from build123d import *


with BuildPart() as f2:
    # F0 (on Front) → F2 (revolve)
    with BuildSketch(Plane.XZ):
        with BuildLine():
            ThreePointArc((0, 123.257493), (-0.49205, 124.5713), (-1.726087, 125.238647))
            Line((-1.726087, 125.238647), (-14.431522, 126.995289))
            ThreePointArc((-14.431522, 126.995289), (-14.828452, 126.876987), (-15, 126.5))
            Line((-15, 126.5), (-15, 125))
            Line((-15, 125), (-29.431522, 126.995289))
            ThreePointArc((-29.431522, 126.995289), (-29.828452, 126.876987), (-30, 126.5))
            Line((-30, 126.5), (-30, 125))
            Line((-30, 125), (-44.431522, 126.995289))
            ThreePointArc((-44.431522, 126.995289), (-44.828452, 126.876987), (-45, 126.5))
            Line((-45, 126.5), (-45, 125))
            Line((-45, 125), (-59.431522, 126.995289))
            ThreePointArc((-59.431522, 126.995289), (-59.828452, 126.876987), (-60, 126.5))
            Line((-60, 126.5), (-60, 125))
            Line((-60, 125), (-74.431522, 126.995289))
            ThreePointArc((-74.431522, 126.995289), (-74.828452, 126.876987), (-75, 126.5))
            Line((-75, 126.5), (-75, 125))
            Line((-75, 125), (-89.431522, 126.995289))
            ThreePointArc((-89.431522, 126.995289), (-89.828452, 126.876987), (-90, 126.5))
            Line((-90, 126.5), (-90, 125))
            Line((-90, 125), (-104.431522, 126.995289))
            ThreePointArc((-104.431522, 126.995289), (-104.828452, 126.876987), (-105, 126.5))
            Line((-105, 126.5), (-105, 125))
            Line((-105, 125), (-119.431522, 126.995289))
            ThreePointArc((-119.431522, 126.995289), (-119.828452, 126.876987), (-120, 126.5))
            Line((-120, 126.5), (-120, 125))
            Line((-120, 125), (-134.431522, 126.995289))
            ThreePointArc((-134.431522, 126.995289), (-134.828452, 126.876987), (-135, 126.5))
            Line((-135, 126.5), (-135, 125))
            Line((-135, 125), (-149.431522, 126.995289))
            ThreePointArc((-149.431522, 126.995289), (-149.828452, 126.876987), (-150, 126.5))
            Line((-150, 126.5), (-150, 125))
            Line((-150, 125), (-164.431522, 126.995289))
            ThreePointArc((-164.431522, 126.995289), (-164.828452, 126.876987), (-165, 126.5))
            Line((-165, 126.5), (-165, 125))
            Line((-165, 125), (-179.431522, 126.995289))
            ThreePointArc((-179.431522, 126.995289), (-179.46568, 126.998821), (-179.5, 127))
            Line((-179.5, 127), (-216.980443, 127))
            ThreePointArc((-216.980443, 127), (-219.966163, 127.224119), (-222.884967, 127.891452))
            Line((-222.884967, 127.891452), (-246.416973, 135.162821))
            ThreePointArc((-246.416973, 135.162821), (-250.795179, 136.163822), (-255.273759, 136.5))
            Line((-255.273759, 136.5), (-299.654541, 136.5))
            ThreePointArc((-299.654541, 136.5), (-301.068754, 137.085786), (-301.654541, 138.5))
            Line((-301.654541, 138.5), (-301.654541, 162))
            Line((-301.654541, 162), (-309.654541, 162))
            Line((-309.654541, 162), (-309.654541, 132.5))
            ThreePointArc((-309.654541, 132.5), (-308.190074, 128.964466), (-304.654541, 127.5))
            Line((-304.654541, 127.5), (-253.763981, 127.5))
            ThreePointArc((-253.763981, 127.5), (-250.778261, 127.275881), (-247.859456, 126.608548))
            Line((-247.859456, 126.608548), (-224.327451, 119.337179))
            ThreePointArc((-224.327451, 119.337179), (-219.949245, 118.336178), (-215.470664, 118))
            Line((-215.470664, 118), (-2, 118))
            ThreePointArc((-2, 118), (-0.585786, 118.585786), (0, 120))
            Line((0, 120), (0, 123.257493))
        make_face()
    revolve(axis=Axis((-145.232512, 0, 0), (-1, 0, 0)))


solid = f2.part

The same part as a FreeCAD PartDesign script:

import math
import FreeCAD as App
import Part
import Sketcher
Q = App.Units.Quantity

doc = App.newDocument("Part")
body = doc.addObject("PartDesign::Body", "Body")

# Sketch on XZ plane
sketch1 = body.newObject("Sketcher::SketchObject", "Sketch")
sketch1.AttachmentSupport = (doc.getObject("XZ_Plane"), [""])
sketch1.MapMode = "FlatFace"
sketch1.addGeometry([
    Part.ArcOfCircle(Part.Circle(App.Vector(-1.999998, 123.257494, 0), App.Vector(0, 0, 1), 1.999998), math.radians(-0.000042), math.radians(82.128275)),  # 0
    Part.LineSegment(App.Vector(-1.726087, 125.238647, 0), App.Vector(-14.431522, 126.995289, 0)),  # 1
    Part.ArcOfCircle(Part.Circle(App.Vector(-14.499999, 126.5, 0), App.Vector(0, 0, 1), 0.500001), math.radians(82.128363), math.radians(179.999946)),  # 2
    Part.LineSegment(App.Vector(-15, 126.5, 0), App.Vector(-15, 125, 0)),  # 3
    Part.LineSegment(App.Vector(-15, 125, 0), App.Vector(-29.431522, 126.995289, 0)),  # 4
    Part.ArcOfCircle(Part.Circle(App.Vector(-29.499999, 126.5, 0), App.Vector(0, 0, 1), 0.500001), math.radians(82.128363), math.radians(179.999946)),  # 5
    Part.LineSegment(App.Vector(-30, 126.5, 0), App.Vector(-30, 125, 0)),  # 6
    Part.LineSegment(App.Vector(-30, 125, 0), App.Vector(-44.431522, 126.995289, 0)),  # 7
    Part.ArcOfCircle(Part.Circle(App.Vector(-44.499999, 126.5, 0), App.Vector(0, 0, 1), 0.500001), math.radians(82.128363), math.radians(179.999946)),  # 8
    Part.LineSegment(App.Vector(-45, 126.5, 0), App.Vector(-45, 125, 0)),  # 9
    Part.LineSegment(App.Vector(-45, 125, 0), App.Vector(-59.431522, 126.995289, 0)),  # 10
    Part.ArcOfCircle(Part.Circle(App.Vector(-59.499999, 126.5, 0), App.Vector(0, 0, 1), 0.500001), math.radians(82.128363), math.radians(179.999946)),  # 11
    Part.LineSegment(App.Vector(-60, 126.5, 0), App.Vector(-60, 125, 0)),  # 12
    Part.LineSegment(App.Vector(-60, 125, 0), App.Vector(-74.431522, 126.995289, 0)),  # 13
    Part.ArcOfCircle(Part.Circle(App.Vector(-74.499999, 126.5, 0), App.Vector(0, 0, 1), 0.500001), math.radians(82.128363), math.radians(179.999946)),  # 14
    Part.LineSegment(App.Vector(-75, 126.5, 0), App.Vector(-75, 125, 0)),  # 15
    Part.LineSegment(App.Vector(-75, 125, 0), App.Vector(-89.431522, 126.995289, 0)),  # 16
    Part.ArcOfCircle(Part.Circle(App.Vector(-89.499999, 126.5, 0), App.Vector(0, 0, 1), 0.500001), math.radians(82.128363), math.radians(179.999946)),  # 17
    Part.LineSegment(App.Vector(-90, 126.5, 0), App.Vector(-90, 125, 0)),  # 18
    Part.LineSegment(App.Vector(-90, 125, 0), App.Vector(-104.431522, 126.995289, 0)),  # 19
    Part.ArcOfCircle(Part.Circle(App.Vector(-104.499999, 126.5, 0), App.Vector(0, 0, 1), 0.500001), math.radians(82.128363), math.radians(179.999946)),  # 20
    Part.LineSegment(App.Vector(-105, 126.5, 0), App.Vector(-105, 125, 0)),  # 21
    Part.LineSegment(App.Vector(-105, 125, 0), App.Vector(-119.431522, 126.995289, 0)),  # 22
    Part.ArcOfCircle(Part.Circle(App.Vector(-119.499999, 126.5, 0), App.Vector(0, 0, 1), 0.500001), math.radians(82.128363), math.radians(179.999946)),  # 23
    Part.LineSegment(App.Vector(-120, 126.5, 0), App.Vector(-120, 125, 0)),  # 24
    Part.LineSegment(App.Vector(-120, 125, 0), App.Vector(-134.431522, 126.995289, 0)),  # 25
    Part.ArcOfCircle(Part.Circle(App.Vector(-134.499999, 126.5, 0), App.Vector(0, 0, 1), 0.500001), math.radians(82.128363), math.radians(179.999946)),  # 26
    Part.LineSegment(App.Vector(-135, 126.5, 0), App.Vector(-135, 125, 0)),  # 27
    Part.LineSegment(App.Vector(-135, 125, 0), App.Vector(-149.431522, 126.995289, 0)),  # 28
    Part.ArcOfCircle(Part.Circle(App.Vector(-149.499999, 126.5, 0), App.Vector(0, 0, 1), 0.500001), math.radians(82.128363), math.radians(179.999946)),  # 29
    Part.LineSegment(App.Vector(-150, 126.5, 0), App.Vector(-150, 125, 0)),  # 30
    Part.LineSegment(App.Vector(-150, 125, 0), App.Vector(-164.431522, 126.995289, 0)),  # 31
    Part.ArcOfCircle(Part.Circle(App.Vector(-164.499999, 126.5, 0), App.Vector(0, 0, 1), 0.500001), math.radians(82.128363), math.radians(179.999946)),  # 32
    Part.LineSegment(App.Vector(-165, 126.5, 0), App.Vector(-165, 125, 0)),  # 33
    Part.LineSegment(App.Vector(-165, 125, 0), App.Vector(-179.431522, 126.995289, 0)),  # 34
    Part.ArcOfCircle(Part.Circle(App.Vector(-179.499996, 126.500016, 0), App.Vector(0, 0, 1), 0.499984), math.radians(82.128499), math.radians(90.000483)),  # 35
    Part.LineSegment(App.Vector(-179.5, 127, 0), App.Vector(-216.980443, 127, 0)),  # 36
    Part.ArcOfCircle(Part.Circle(App.Vector(-216.98044, 147.000026, 0), App.Vector(0, 0, 1), 20.000026), math.radians(-107.171088), math.radians(-90.000009)),  # 37
    Part.LineSegment(App.Vector(-222.884967, 127.891452, 0), App.Vector(-246.416973, 135.162821, 0)),  # 38
    Part.ArcOfCircle(Part.Circle(App.Vector(-255.273754, 106.500047, 0), App.Vector(0, 0, 1), 29.999953), math.radians(72.828881), math.radians(90.00001)),  # 39
    Part.LineSegment(App.Vector(-255.273759, 136.5, 0), App.Vector(-299.654541, 136.5, 0)),  # 40
    Part.ArcOfCircle(Part.Circle(App.Vector(-299.654541, 138.5, 0), App.Vector(0, 0, 1), 2), math.radians(-179.999994), math.radians(-90.000006)),  # 41
    Part.LineSegment(App.Vector(-301.654541, 138.5, 0), App.Vector(-301.654541, 162, 0)),  # 42
    Part.LineSegment(App.Vector(-301.654541, 162, 0), App.Vector(-309.654541, 162, 0)),  # 43
    Part.LineSegment(App.Vector(-309.654541, 162, 0), App.Vector(-309.654541, 132.5, 0)),  # 44
    Part.ArcOfCircle(Part.Circle(App.Vector(-304.65454, 132.500001, 0), App.Vector(0, 0, 1), 5.000001), math.radians(-179.999984), math.radians(-90.000016)),  # 45
    Part.LineSegment(App.Vector(-304.654541, 127.5, 0), App.Vector(-253.763981, 127.5, 0)),  # 46
    Part.ArcOfCircle(Part.Circle(App.Vector(-253.763985, 107.49996, 0), App.Vector(0, 0, 1), 20.00004), math.radians(72.828918), math.radians(89.999988)),  # 47
    Part.LineSegment(App.Vector(-247.859456, 126.608548, 0), App.Vector(-224.327451, 119.337179, 0)),  # 48
    Part.ArcOfCircle(Part.Circle(App.Vector(-215.47067, 147.999953, 0), App.Vector(0, 0, 1), 29.999953), math.radians(-107.171119), math.radians(-89.999988)),  # 49
    Part.LineSegment(App.Vector(-215.470664, 118, 0), App.Vector(-2, 118, 0)),  # 50
    Part.ArcOfCircle(Part.Circle(App.Vector(-1.999999, 119.999999, 0), App.Vector(0, 0, 1), 1.999999), math.radians(-90.000043), math.radians(0.000043)),  # 51
    Part.LineSegment(App.Vector(0, 120, 0), App.Vector(0, 123.257493, 0)),  # 52
], False)
sketch1.addConstraint([
    Sketcher.Constraint("Coincident", 0, 2, 1, 1),
    Sketcher.Constraint("Coincident", 1, 2, 2, 1),
    Sketcher.Constraint("Coincident", 2, 2, 3, 1),
    Sketcher.Constraint("Coincident", 3, 2, 4, 1),
    Sketcher.Constraint("Coincident", 4, 2, 5, 1),
    Sketcher.Constraint("Coincident", 5, 2, 6, 1),
    Sketcher.Constraint("Coincident", 6, 2, 7, 1),
    Sketcher.Constraint("Coincident", 7, 2, 8, 1),
    Sketcher.Constraint("Coincident", 8, 2, 9, 1),
    Sketcher.Constraint("Coincident", 9, 2, 10, 1),
    Sketcher.Constraint("Coincident", 10, 2, 11, 1),
    Sketcher.Constraint("Coincident", 11, 2, 12, 1),
    Sketcher.Constraint("Coincident", 12, 2, 13, 1),
    Sketcher.Constraint("Coincident", 13, 2, 14, 1),
    Sketcher.Constraint("Coincident", 14, 2, 15, 1),
    Sketcher.Constraint("Coincident", 15, 2, 16, 1),
    Sketcher.Constraint("Coincident", 16, 2, 17, 1),
    Sketcher.Constraint("Coincident", 17, 2, 18, 1),
    Sketcher.Constraint("Coincident", 18, 2, 19, 1),
    Sketcher.Constraint("Coincident", 19, 2, 20, 1),
    Sketcher.Constraint("Coincident", 20, 2, 21, 1),
    Sketcher.Constraint("Coincident", 21, 2, 22, 1),
    Sketcher.Constraint("Coincident", 22, 2, 23, 1),
    Sketcher.Constraint("Coincident", 23, 2, 24, 1),
    Sketcher.Constraint("Coincident", 24, 2, 25, 1),
    Sketcher.Constraint("Coincident", 25, 2, 26, 1),
    Sketcher.Constraint("Coincident", 26, 2, 27, 1),
    Sketcher.Constraint("Coincident", 27, 2, 28, 1),
    Sketcher.Constraint("Coincident", 28, 2, 29, 1),
    Sketcher.Constraint("Coincident", 29, 2, 30, 1),
    Sketcher.Constraint("Coincident", 30, 2, 31, 1),
    Sketcher.Constraint("Coincident", 31, 2, 32, 1),
    Sketcher.Constraint("Coincident", 32, 2, 33, 1),
    Sketcher.Constraint("Coincident", 33, 2, 34, 1),
    Sketcher.Constraint("Coincident", 34, 2, 35, 1),
    Sketcher.Constraint("Coincident", 35, 2, 36, 1),
    Sketcher.Constraint("Coincident", 36, 2, 37, 2),
    Sketcher.Constraint("Coincident", 37, 1, 38, 1),
    Sketcher.Constraint("Coincident", 38, 2, 39, 1),
    Sketcher.Constraint("Coincident", 39, 2, 40, 1),
    Sketcher.Constraint("Coincident", 40, 2, 41, 2),
    Sketcher.Constraint("Coincident", 41, 1, 42, 1),
    Sketcher.Constraint("Coincident", 42, 2, 43, 1),
    Sketcher.Constraint("Coincident", 43, 2, 44, 1),
    Sketcher.Constraint("Coincident", 44, 2, 45, 1),
    Sketcher.Constraint("Coincident", 45, 2, 46, 1),
    Sketcher.Constraint("Coincident", 46, 2, 47, 2),
    Sketcher.Constraint("Coincident", 47, 1, 48, 1),
    Sketcher.Constraint("Coincident", 48, 2, 49, 1),
    Sketcher.Constraint("Coincident", 49, 2, 50, 1),
    Sketcher.Constraint("Coincident", 50, 2, 51, 1),
    Sketcher.Constraint("Coincident", 51, 2, 52, 1),
    Sketcher.Constraint("Coincident", 52, 2, 0, 1),
    Sketcher.Constraint("Vertical", 3),
    Sketcher.Constraint("Vertical", 6),
    Sketcher.Constraint("Vertical", 9),
    Sketcher.Constraint("Vertical", 12),
    Sketcher.Constraint("Vertical", 15),
    Sketcher.Constraint("Vertical", 18),
    Sketcher.Constraint("Vertical", 21),
    Sketcher.Constraint("Vertical", 24),
    Sketcher.Constraint("Vertical", 27),
    Sketcher.Constraint("Vertical", 30),
    Sketcher.Constraint("Vertical", 33),
    Sketcher.Constraint("Horizontal", 36),
    Sketcher.Constraint("Horizontal", 40),
    Sketcher.Constraint("Vertical", 42),
    Sketcher.Constraint("Horizontal", 43),
    Sketcher.Constraint("Vertical", 44),
    Sketcher.Constraint("Horizontal", 46),
    Sketcher.Constraint("Horizontal", 50),
    Sketcher.Constraint("Vertical", 52),
    Sketcher.Constraint("PointOnObject", 51, 2, -2),
    Sketcher.Constraint("Radius", 0, Q("1.999998 mm")),
    Sketcher.Constraint("Radius", 41, Q("2 mm")),
    Sketcher.Constraint("Radius", 45, Q("5.000001 mm")),
    Sketcher.Constraint("Radius", 51, Q("1.999999 mm")),
    Sketcher.Constraint("Radius", 2, Q("0.500001 mm")),
    Sketcher.Constraint("Radius", 5, Q("0.500001 mm")),
    Sketcher.Constraint("Radius", 8, Q("0.500001 mm")),
    Sketcher.Constraint("Radius", 11, Q("0.500001 mm")),
    Sketcher.Constraint("Radius", 14, Q("0.500001 mm")),
    Sketcher.Constraint("Radius", 17, Q("0.500001 mm")),
    Sketcher.Constraint("Radius", 20, Q("0.500001 mm")),
    Sketcher.Constraint("Radius", 23, Q("0.500001 mm")),
    Sketcher.Constraint("Radius", 26, Q("0.500001 mm")),
    Sketcher.Constraint("Radius", 29, Q("0.500001 mm")),
    Sketcher.Constraint("Radius", 32, Q("0.500001 mm")),
    Sketcher.Constraint("DistanceX", 43, 2, 43, 1, Q("8 mm")),
    Sketcher.Constraint("DistanceY", 3, 2, 3, 1, Q("1.5 mm")),
    Sketcher.Constraint("DistanceY", 6, 2, 6, 1, Q("1.5 mm")),
    Sketcher.Constraint("DistanceY", 9, 2, 9, 1, Q("1.5 mm")),
    Sketcher.Constraint("DistanceY", 12, 2, 12, 1, Q("1.5 mm")),
    Sketcher.Constraint("DistanceY", 15, 2, 15, 1, Q("1.5 mm")),
    Sketcher.Constraint("DistanceY", 18, 2, 18, 1, Q("1.5 mm")),
    Sketcher.Constraint("DistanceY", 21, 2, 21, 1, Q("1.5 mm")),
    Sketcher.Constraint("DistanceY", 24, 2, 24, 1, Q("1.5 mm")),
    Sketcher.Constraint("DistanceY", 27, 2, 27, 1, Q("1.5 mm")),
    Sketcher.Constraint("DistanceY", 30, 2, 30, 1, Q("1.5 mm")),
    Sketcher.Constraint("DistanceY", 33, 2, 33, 1, Q("1.5 mm")),
    Sketcher.Constraint("DistanceY", 42, 1, 42, 2, Q("23.5 mm")),
    Sketcher.Constraint("DistanceY", 44, 2, 44, 1, Q("29.5 mm")),
    Sketcher.Constraint("DistanceY", -1, 1, 51, 3, Q("119.999999 mm")),
    Sketcher.Constraint("DistanceX", 2, 2, -1, 1, Q("15 mm")),
    Sketcher.Constraint("DistanceY", -1, 1, 3, 2, Q("125 mm")),
    Sketcher.Constraint("DistanceX", 5, 2, -1, 1, Q("30 mm")),
    Sketcher.Constraint("DistanceY", -1, 1, 6, 2, Q("125 mm")),
    Sketcher.Constraint("DistanceX", 8, 2, -1, 1, Q("45 mm")),
    Sketcher.Constraint("DistanceY", -1, 1, 9, 2, Q("125 mm")),
    Sketcher.Constraint("DistanceX", 11, 2, -1, 1, Q("60 mm")),
    Sketcher.Constraint("DistanceY", -1, 1, 12, 2, Q("125 mm")),
    Sketcher.Constraint("DistanceX", 14, 2, -1, 1, Q("75 mm")),
    Sketcher.Constraint("DistanceY", -1, 1, 15, 2, Q("125 mm")),
    Sketcher.Constraint("DistanceX", 17, 2, -1, 1, Q("90 mm")),
    Sketcher.Constraint("DistanceY", -1, 1, 18, 2, Q("125 mm")),
    Sketcher.Constraint("DistanceX", 20, 2, -1, 1, Q("105 mm")),
    Sketcher.Constraint("DistanceY", -1, 1, 21, 2, Q("125 mm")),
    Sketcher.Constraint("DistanceX", 23, 2, -1, 1, Q("120 mm")),
    Sketcher.Constraint("DistanceY", -1, 1, 24, 2, Q("125 mm")),
    Sketcher.Constraint("DistanceX", 26, 2, -1, 1, Q("135 mm")),
    Sketcher.Constraint("DistanceY", -1, 1, 27, 2, Q("125 mm")),
    Sketcher.Constraint("DistanceX", 29, 2, -1, 1, Q("150 mm")),
    Sketcher.Constraint("DistanceY", -1, 1, 30, 2, Q("125 mm")),
    Sketcher.Constraint("DistanceX", 32, 2, -1, 1, Q("165 mm")),
    Sketcher.Constraint("DistanceY", -1, 1, 33, 2, Q("125 mm")),
    Sketcher.Constraint("DistanceY", -1, 1, 35, 2, Q("127 mm")),
    Sketcher.Constraint("DistanceY", -1, 1, 42, 2, Q("162 mm")),
    Sketcher.Constraint("DistanceX", 50, 2, -1, 1, Q("2 mm")),
    Sketcher.Constraint("DistanceY", -1, 1, 51, 2, Q("120 mm")),
    Sketcher.Constraint("DistanceY", -1, 1, 2, 3, Q("126.5 mm")),
    Sketcher.Constraint("DistanceY", -1, 1, 5, 3, Q("126.5 mm")),
    Sketcher.Constraint("DistanceY", -1, 1, 8, 3, Q("126.5 mm")),
    Sketcher.Constraint("DistanceY", -1, 1, 11, 3, Q("126.5 mm")),
    Sketcher.Constraint("DistanceY", -1, 1, 14, 3, Q("126.5 mm")),
    Sketcher.Constraint("DistanceY", -1, 1, 17, 3, Q("126.5 mm")),
    Sketcher.Constraint("DistanceY", -1, 1, 20, 3, Q("126.5 mm")),
    Sketcher.Constraint("DistanceY", -1, 1, 23, 3, Q("126.5 mm")),
    Sketcher.Constraint("DistanceY", -1, 1, 26, 3, Q("126.5 mm")),
    Sketcher.Constraint("DistanceY", -1, 1, 29, 3, Q("126.5 mm")),
    Sketcher.Constraint("DistanceY", -1, 1, 32, 3, Q("126.5 mm")),
    Sketcher.Constraint("DistanceY", -1, 1, 41, 3, Q("138.5 mm")),
    Sketcher.Constraint("DistanceY", -1, 1, 45, 3, Q("132.500001 mm")),
    Sketcher.Constraint("DistanceX", 35, 2, -1, 1, Q("179.5 mm")),
    Sketcher.Constraint("Radius", 47, Q("20.00004 mm")),
    Sketcher.Constraint("Radius", 35, Q("0.499984 mm")),
    Sketcher.Constraint("Radius", 37, Q("20.000026 mm")),
    Sketcher.Constraint("Radius", 39, Q("29.999953 mm")),
    Sketcher.Constraint("Radius", 49, Q("29.999953 mm")),
    Sketcher.Constraint("DistanceX", 40, 2, 40, 1, Q("44.380782 mm")),
    Sketcher.Constraint("DistanceX", 46, 1, 46, 2, Q("50.89056 mm")),
    Sketcher.Constraint("Distance", 38, Q("24.629822 mm")),
    Sketcher.Constraint("Distance", 48, Q("24.629821 mm")),
    Sketcher.Constraint("DistanceX", 36, 2, 36, 1, Q("37.480443 mm")),
    Sketcher.Constraint("DistanceX", 50, 1, 50, 2, Q("213.470664 mm")),
    Sketcher.Constraint("DistanceY", 52, 1, 52, 2, Q("3.257493 mm")),
    Sketcher.Constraint("DistanceX", 37, 3, -1, 1, Q("216.98044 mm")),
    Sketcher.Constraint("DistanceX", 41, 3, -1, 1, Q("299.654541 mm")),
    Sketcher.Constraint("DistanceX", 49, 3, -1, 1, Q("215.47067 mm")),
    Sketcher.Constraint("DistanceX", 1, 2, -1, 1, Q("14.431522 mm")),
    Sketcher.Constraint("DistanceY", -1, 1, 4, 2, Q("126.995289 mm")),
    Sketcher.Constraint("DistanceY", -1, 1, 7, 2, Q("126.995289 mm")),
    Sketcher.Constraint("DistanceY", -1, 1, 10, 2, Q("126.995289 mm")),
    Sketcher.Constraint("DistanceX", 13, 2, -1, 1, Q("74.431522 mm")),
    Sketcher.Constraint("DistanceX", 16, 2, -1, 1, Q("89.431522 mm")),
    Sketcher.Constraint("DistanceX", 19, 2, -1, 1, Q("104.431522 mm")),
    Sketcher.Constraint("DistanceX", 22, 2, -1, 1, Q("119.431522 mm")),
    Sketcher.Constraint("DistanceX", 25, 2, -1, 1, Q("134.431522 mm")),
    Sketcher.Constraint("DistanceX", 28, 2, -1, 1, Q("149.431522 mm")),
    Sketcher.Constraint("DistanceX", 31, 2, -1, 1, Q("164.431522 mm")),
    Sketcher.Constraint("DistanceX", 34, 2, -1, 1, Q("179.431522 mm")),
    Sketcher.Constraint("DistanceY", -1, 1, 34, 2, Q("126.995289 mm")),
    Sketcher.Constraint("DistanceY", -1, 1, 37, 1, Q("127.891452 mm")),
    Sketcher.Constraint("DistanceY", -1, 1, 38, 2, Q("135.162821 mm")),
    Sketcher.Constraint("DistanceX", 39, 2, -1, 1, Q("255.273759 mm")),
    Sketcher.Constraint("DistanceX", 45, 2, -1, 1, Q("304.654541 mm")),
    Sketcher.Constraint("DistanceY", -1, 1, 47, 1, Q("126.608548 mm")),
    Sketcher.Constraint("DistanceX", 48, 2, -1, 1, Q("224.327451 mm")),
    Sketcher.Constraint("Distance", 1, Q("12.826296 mm")),
    Sketcher.Constraint("DistanceY", -1, 1, 0, 3, Q("123.257494 mm")),
])
revolution = body.newObject("PartDesign::Revolution", "Revolution")
revolution.Profile = sketch1
revolution.ReferenceAxis = (sketch1, ["H_Axis"])
revolution.Angle = 360

doc.recompute()
